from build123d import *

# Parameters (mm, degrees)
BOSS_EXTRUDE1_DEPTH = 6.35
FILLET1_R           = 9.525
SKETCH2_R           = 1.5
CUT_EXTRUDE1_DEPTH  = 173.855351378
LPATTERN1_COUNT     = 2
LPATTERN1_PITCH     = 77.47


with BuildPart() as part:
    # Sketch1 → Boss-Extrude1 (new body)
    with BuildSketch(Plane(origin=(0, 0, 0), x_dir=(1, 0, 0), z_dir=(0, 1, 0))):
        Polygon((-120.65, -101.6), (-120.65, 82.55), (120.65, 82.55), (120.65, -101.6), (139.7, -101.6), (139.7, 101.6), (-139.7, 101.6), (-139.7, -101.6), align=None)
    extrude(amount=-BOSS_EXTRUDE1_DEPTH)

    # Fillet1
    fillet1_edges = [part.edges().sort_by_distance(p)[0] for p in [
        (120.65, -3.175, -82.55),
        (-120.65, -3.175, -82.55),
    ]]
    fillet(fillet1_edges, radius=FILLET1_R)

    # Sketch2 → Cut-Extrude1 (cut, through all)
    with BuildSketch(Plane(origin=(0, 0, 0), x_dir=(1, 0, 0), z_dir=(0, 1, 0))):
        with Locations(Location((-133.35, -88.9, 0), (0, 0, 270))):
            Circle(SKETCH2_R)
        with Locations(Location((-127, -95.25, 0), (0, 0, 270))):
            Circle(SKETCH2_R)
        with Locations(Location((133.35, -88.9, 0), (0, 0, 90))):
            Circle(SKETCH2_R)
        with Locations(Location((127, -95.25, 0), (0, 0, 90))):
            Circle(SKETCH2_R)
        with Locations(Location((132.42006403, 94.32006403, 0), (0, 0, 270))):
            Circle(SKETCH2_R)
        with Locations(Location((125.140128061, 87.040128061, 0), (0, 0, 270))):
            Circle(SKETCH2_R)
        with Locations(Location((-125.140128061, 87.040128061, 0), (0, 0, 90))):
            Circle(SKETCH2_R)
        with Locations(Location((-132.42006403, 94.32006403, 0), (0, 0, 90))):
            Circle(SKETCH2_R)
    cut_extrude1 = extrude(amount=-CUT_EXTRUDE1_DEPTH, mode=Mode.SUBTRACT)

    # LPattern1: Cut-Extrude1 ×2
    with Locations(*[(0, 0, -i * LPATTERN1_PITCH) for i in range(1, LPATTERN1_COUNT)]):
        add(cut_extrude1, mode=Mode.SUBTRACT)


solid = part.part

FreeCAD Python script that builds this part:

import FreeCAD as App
import Part
import Sketcher

V = App.Vector
Q = App.Units.Quantity


def edges_at(feature, points):
    """Names of the edges that pass closest to the given points."""
    edges = feature.Shape.Edges
    near = lambda p: min(range(len(edges)), key=lambda i: edges[i].distToShape(Part.Vertex(*p))[0])
    return sorted({f"Edge{near(p) + 1}" for p in points})

doc = App.newDocument("Part")
body = doc.addObject("PartDesign::Body", "Body")

sketch1 = doc.addObject("Sketcher::SketchObject", "Sketch")
body.addObject(sketch1)
sketch1.AttachmentSupport = (doc.XZ_Plane, [""])
sketch1.MapMode = "FlatFace"
sketch1.addGeometry([
    Part.LineSegment(V(-120.65, 101.6, 0), V(-120.65, -82.55, 0)),
    Part.LineSegment(V(-120.65, -82.55, 0), V(120.65, -82.55, 0)),
    Part.LineSegment(V(120.65, -82.55, 0), V(120.65, 101.6, 0)),
    Part.LineSegment(V(120.65, 101.6, 0), V(139.7, 101.6, 0)),
    Part.LineSegment(V(139.7, 101.6, 0), V(139.7, -101.6, 0)),
    Part.LineSegment(V(139.7, -101.6, 0), V(-139.7, -101.6, 0)),
    Part.LineSegment(V(-139.7, -101.6, 0), V(-139.7, 101.6, 0)),
    Part.LineSegment(V(-139.7, 101.6, 0), V(-120.65, 101.6, 0)),
], False)
sketch1.addConstraint([
    Sketcher.Constraint("Coincident", 0, 2, 1, 1),
    Sketcher.Constraint("Coincident", 1, 2, 2, 1),
    Sketcher.Constraint("Coincident", 2, 2, 3, 1),
    Sketcher.Constraint("Coincident", 3, 2, 4, 1),
    Sketcher.Constraint("Coincident", 4, 2, 5, 1),
    Sketcher.Constraint("Coincident", 5, 2, 6, 1),
    Sketcher.Constraint("Coincident", 6, 2, 7, 1),
    Sketcher.Constraint("Coincident", 7, 2, 0, 1),
    Sketcher.Constraint("Vertical", 0),
    Sketcher.Constraint("Horizontal", 1),
    Sketcher.Constraint("Vertical", 2),
    Sketcher.Constraint("Horizontal", 3),
    Sketcher.Constraint("Vertical", 4),
    Sketcher.Constraint("Horizontal", 5),
    Sketcher.Constraint("Vertical", 6),
    Sketcher.Constraint("Horizontal", 7),
    Sketcher.Constraint("Symmetric", 3, 2, 5, 2, -1, 1),
    Sketcher.Constraint("Symmetric", 2, 2, 7, 2, -2),
    Sketcher.Constraint("DistanceX", 5, 2, 5, 1, Q("11 in")),
    Sketcher.Constraint("DistanceY", 4, 2, 4, 1, Q("8 in")),
    Sketcher.Constraint("DistanceX", 1, 1, 1, 2, Q("9.5 in")),
    Sketcher.Constraint("DistanceY", 0, 2, 0, 1, Q("7.25 in")),
])
pad1 = doc.addObject("PartDesign::Pad", "Pad")
body.addObject(pad1)
pad1.Profile = sketch1
pad1.Length = Q("0.25 in")
doc.recompute()

fillet = doc.addObject("PartDesign::Fillet", "Fillet")
body.addObject(fillet)
fillet.Base = (pad1, edges_at(pad1, [(120.65, -3.175, -82.55), (-120.65, -3.175, -82.55)]))
fillet.Radius = Q("0.375 in")

sketch2 = doc.addObject("Sketcher::SketchObject", "Sketch001")
body.addObject(sketch2)
sketch2.AttachmentSupport = (doc.XZ_Plane, [""])
sketch2.MapMode = "FlatFace"
sketch2.addGeometry([
    Part.Circle(V(-133.35, 88.9, 0), V(0, 0, 1), 1.5),
    Part.Circle(V(-127, 95.25, 0), V(0, 0, 1), 1.5),
    Part.Circle(V(133.35, 88.9, 0), V(0, 0, 1), 1.5),
    Part.Circle(V(127, 95.25, 0), V(0, 0, 1), 1.5),
    Part.Circle(V(132.420064, -94.320064, 0), V(0, 0, 1), 1.5),
    Part.Circle(V(125.140128, -87.040128, 0), V(0, 0, 1), 1.5),
    Part.Circle(V(-125.140128, -87.040128, 0), V(0, 0, 1), 1.5),
    Part.Circle(V(-132.420064, -94.320064, 0), V(0, 0, 1), 1.5),
], False)
sketch2.addConstraint([
    Sketcher.Constraint("Equal", 0, 1),
    Sketcher.Constraint("Equal", 1, 2),
    Sketcher.Constraint("Equal", 2, 3),
    Sketcher.Constraint("Equal", 3, 4),
    Sketcher.Constraint("Equal", 4, 5),
    Sketcher.Constraint("Equal", 5, 6),
    Sketcher.Constraint("Equal", 6, 7),
    Sketcher.Constraint("Symmetric", 0, 3, 2, 3, -2),
    Sketcher.Constraint("Symmetric", 1, 3, 3, 3, -2),
    Sketcher.Constraint("Symmetric", 5, 3, 6, 3, -2),
    Sketcher.Constraint("Symmetric", 4, 3, 7, 3, -2),
    Sketcher.Constraint("DistanceX", 1, 3, -1, 1, Q("5 in")),
    Sketcher.Constraint("DistanceY", -1, 1, 0, 3, Q("3.5 in")),
    Sketcher.Constraint("DistanceX", 0, 3, 2, 3, Q("10.5 in")),
    Sketcher.Constraint("Diameter", 0, Q("3 mm")),
    Sketcher.Constraint("DistanceY", -1, 1, 1, 3, Q("3.75 in")),
    Sketcher.Constraint("DistanceX", -1, 1, 5, 3, Q("125.140128 mm")),
    Sketcher.Constraint("DistanceY", 5, 3, -1, 1, Q("87.040128 mm")),
    Sketcher.Constraint("DistanceX", 7, 3, 4, 3, Q("264.840128 mm")),
    Sketcher.Constraint("DistanceY", 4, 3, -1, 1, Q("94.320064 mm")),
])
pocket1 = doc.addObject("PartDesign::Pocket", "Pocket")
body.addObject(pocket1)
pocket1.Profile = sketch2
pocket1.Type = "ThroughAll"
pocket1.Reversed = True
doc.recompute()

linearpattern = doc.addObject("PartDesign::LinearPattern", "LinearPattern")
body.addObject(linearpattern)
linearpattern.Originals = [pocket1]
linearpattern.Direction = (doc.Z_Axis, [""])
linearpattern.Mode = "offset"
linearpattern.Offset = Q("3.05 in")
linearpattern.Occurrences = 2
linearpattern.Reversed = True
body.Tip = linearpattern

doc.recompute()
